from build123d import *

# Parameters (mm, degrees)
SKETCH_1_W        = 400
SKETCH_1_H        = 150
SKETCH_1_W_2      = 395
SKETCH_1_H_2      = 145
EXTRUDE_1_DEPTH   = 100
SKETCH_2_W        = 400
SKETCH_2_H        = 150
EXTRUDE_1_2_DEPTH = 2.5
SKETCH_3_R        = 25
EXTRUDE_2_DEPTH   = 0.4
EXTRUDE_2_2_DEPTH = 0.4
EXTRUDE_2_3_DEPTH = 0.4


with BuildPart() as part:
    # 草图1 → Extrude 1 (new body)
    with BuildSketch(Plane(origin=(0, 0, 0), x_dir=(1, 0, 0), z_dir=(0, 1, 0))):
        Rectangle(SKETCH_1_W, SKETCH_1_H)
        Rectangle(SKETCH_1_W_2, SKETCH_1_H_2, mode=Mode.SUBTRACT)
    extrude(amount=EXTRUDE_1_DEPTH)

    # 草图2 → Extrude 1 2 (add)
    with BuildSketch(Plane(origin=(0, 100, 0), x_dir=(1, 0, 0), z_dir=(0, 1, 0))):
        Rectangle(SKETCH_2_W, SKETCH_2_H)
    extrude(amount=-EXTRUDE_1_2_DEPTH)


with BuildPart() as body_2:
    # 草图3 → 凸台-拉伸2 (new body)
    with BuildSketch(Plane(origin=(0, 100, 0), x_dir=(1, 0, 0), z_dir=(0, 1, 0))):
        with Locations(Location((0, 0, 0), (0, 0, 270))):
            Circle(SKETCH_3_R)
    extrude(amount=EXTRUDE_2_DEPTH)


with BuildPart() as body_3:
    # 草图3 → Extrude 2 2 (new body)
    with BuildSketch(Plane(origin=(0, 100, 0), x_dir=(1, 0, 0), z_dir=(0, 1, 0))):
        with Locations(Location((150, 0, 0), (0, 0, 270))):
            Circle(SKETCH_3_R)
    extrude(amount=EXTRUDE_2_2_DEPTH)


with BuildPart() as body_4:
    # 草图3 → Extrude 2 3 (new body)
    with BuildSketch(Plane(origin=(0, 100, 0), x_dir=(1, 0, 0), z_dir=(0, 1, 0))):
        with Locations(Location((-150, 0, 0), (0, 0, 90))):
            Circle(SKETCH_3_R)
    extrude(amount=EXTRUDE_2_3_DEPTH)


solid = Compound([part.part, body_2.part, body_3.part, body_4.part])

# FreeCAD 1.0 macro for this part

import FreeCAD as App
import Part
import Sketcher
from FreeCAD import Vector
Q = App.Units.Quantity

doc = App.newDocument("Part")
body = doc.addObject("PartDesign::Body", "Body")

# Sketch on XZ plane
sketch1 = body.newObject("Sketcher::SketchObject", "Sketch")
sketch1.AttachmentSupport = (doc.getObject("XZ_Plane"), [""])
sketch1.MapMode = "FlatFace"
sketch1.addGeometry([
    Part.LineSegment(Vector(-200, -75, 0), Vector(-200, 75, 0)),  # 0
    Part.LineSegment(Vector(-200, 75, 0), Vector(200, 75, 0)),  # 1
    Part.LineSegment(Vector(200, 75, 0), Vector(200, -75, 0)),  # 2
    Part.LineSegment(Vector(200, -75, 0), Vector(-200, -75, 0)),  # 3
    Part.LineSegment(Vector(198, 72, 0), Vector(-198, 72, 0)),  # 4
    Part.LineSegment(Vector(-198, 72, 0), Vector(-198, -72, 0)),  # 5
    Part.LineSegment(Vector(-198, -72, 0), Vector(198, -72, 0)),  # 6
    Part.LineSegment(Vector(198, -72, 0), Vector(198, 72, 0)),  # 7
], False)
sketch1.addConstraint([
    Sketcher.Constraint("Coincident", 0, 2, 1, 1),
    Sketcher.Constraint("Coincident", 1, 2, 2, 1),
    Sketcher.Constraint("Coincident", 2, 2, 3, 1),
    Sketcher.Constraint("Coincident", 3, 2, 0, 1),
    Sketcher.Constraint("Coincident", 4, 2, 5, 1),
    Sketcher.Constraint("Coincident", 5, 2, 6, 1),
    Sketcher.Constraint("Coincident", 6, 2, 7, 1),
    Sketcher.Constraint("Coincident", 7, 2, 4, 1),
    Sketcher.Constraint("Vertical", 0),
    Sketcher.Constraint("Horizontal", 1),
    Sketcher.Constraint("Vertical", 2),
    Sketcher.Constraint("Horizontal", 3),
    Sketcher.Constraint("Horizontal", 4),
    Sketcher.Constraint("Vertical", 5),
    Sketcher.Constraint("Horizontal", 6),
    Sketcher.Constraint("Vertical", 7),
    Sketcher.Constraint("Symmetric", 0, 2, 2, 2, -1, 1),
    Sketcher.Constraint("Symmetric", 4, 2, 6, 2, -1, 1),
    Sketcher.Constraint("DistanceX", 1, 1, 1, 2, Q("400 mm")),
    Sketcher.Constraint("DistanceX", 4, 2, 4, 1, Q("395 mm")),
    Sketcher.Constraint("DistanceY", 0, 1, 0, 2, Q("150 mm")),
    Sketcher.Constraint("DistanceY", 5, 2, 5, 1, Q("145 mm")),
])
pad1 = body.newObject("PartDesign::Pad", "Pad")
pad1.Profile = sketch1
pad1.Length = 100
pad1.Reversed = True

# Sketch on XZ plane
sketch2 = body.newObject("Sketcher::SketchObject", "Sketch001")
sketch2.AttachmentSupport = (doc.getObject("XZ_Plane"), [""])
sketch2.MapMode = "FlatFace"
sketch2.AttachmentOffset = App.Placement(Vector(0, 0, -100), App.Rotation())
sketch2.addGeometry([
    Part.LineSegment(Vector(-200, -75, 0), Vector(-200, 75, 0)),
    Part.LineSegment(Vector(-200, 75, 0), Vector(200, 75, 0)),
    Part.LineSegment(Vector(200, 75, 0), Vector(200, -75, 0)),
    Part.LineSegment(Vector(200, -75, 0), Vector(-200, -75, 0)),
], False)
sketch2.addConstraint([
    Sketcher.Constraint("Coincident", 0, 2, 1, 1),
    Sketcher.Constraint("Coincident", 1, 2, 2, 1),
    Sketcher.Constraint("Coincident", 2, 2, 3, 1),
    Sketcher.Constraint("Coincident", 3, 2, 0, 1),
    Sketcher.Constraint("Vertical", 0),
    Sketcher.Constraint("Horizontal", 1),
    Sketcher.Constraint("Vertical", 2),
    Sketcher.Constraint("Horizontal", 3),
    Sketcher.Constraint("Symmetric", 0, 2, 2, 2, -1, 1),
    Sketcher.Constraint("DistanceX", 1, 1, 1, 2, Q("400 mm")),
    Sketcher.Constraint("DistanceY", 0, 1, 0, 2, Q("150 mm")),
])
pad2 = body.newObject("PartDesign::Pad", "Pad001")
pad2.Profile = sketch2
pad2.Length = 2.5
body2 = doc.addObject("PartDesign::Body", "Body001")

# Sketch on XZ plane
sketch3 = body2.newObject("Sketcher::SketchObject", "Sketch002")
sketch3.AttachmentSupport = (doc.getObject("XZ_Plane001"), [""])
sketch3.MapMode = "FlatFace"
sketch3.AttachmentOffset = App.Placement(Vector(0, 0, -100), App.Rotation())
sketch3.addGeometry(Part.Circle(Vector(0, 0, 0), Vector(0, 0, 1), 25), False)
sketch3.addConstraint([
    Sketcher.Constraint("Coincident", 0, 3, -1, 1),
    Sketcher.Constraint("Diameter", 0, Q("50 mm")),
])
pad3 = body2.newObject("PartDesign::Pad", "Pad002")
pad3.Profile = sketch3
pad3.Length = 0.4
pad3.Reversed = True
body3 = doc.addObject("PartDesign::Body", "Body002")

# Sketch on XZ plane
sketch4 = body3.newObject("Sketcher::SketchObject", "Sketch003")
sketch4.AttachmentSupport = (doc.getObject("XZ_Plane002"), [""])
sketch4.MapMode = "FlatFace"
sketch4.AttachmentOffset = App.Placement(Vector(0, 0, -100), App.Rotation())
sketch4.addGeometry(Part.Circle(Vector(150, 0, 0), Vector(0, 0, 1), 25), False)
sketch4.addConstraint([
    Sketcher.Constraint("PointOnObject", 0, 3, -1),
    Sketcher.Constraint("Diameter", 0, Q("50 mm")),
    Sketcher.Constraint("DistanceX", -1, 1, 0, 3, Q("150 mm")),
])
pad4 = body3.newObject("PartDesign::Pad", "Pad003")
pad4.Profile = sketch4
pad4.Length = 0.4
pad4.Reversed = True
body4 = doc.addObject("PartDesign::Body", "Body003")

# Sketch on XZ plane
sketch5 = body4.newObject("Sketcher::SketchObject", "Sketch004")
sketch5.AttachmentSupport = (doc.getObject("XZ_Plane003"), [""])
sketch5.MapMode = "FlatFace"
sketch5.AttachmentOffset = App.Placement(Vector(0, 0, -100), App.Rotation())
sketch5.addGeometry(Part.Circle(Vector(-150, 0, 0), Vector(0, 0, 1), 25), False)
sketch5.addConstraint([
    Sketcher.Constraint("PointOnObject", 0, 3, -1),
    Sketcher.Constraint("Diameter", 0, Q("50 mm")),
    Sketcher.Constraint("DistanceX", 0, 3, -1, 1, Q("150 mm")),
])
pad5 = body4.newObject("PartDesign::Pad", "Pad004")
pad5.Profile = sketch5
pad5.Length = 0.4
pad5.Reversed = True

doc.recompute()
